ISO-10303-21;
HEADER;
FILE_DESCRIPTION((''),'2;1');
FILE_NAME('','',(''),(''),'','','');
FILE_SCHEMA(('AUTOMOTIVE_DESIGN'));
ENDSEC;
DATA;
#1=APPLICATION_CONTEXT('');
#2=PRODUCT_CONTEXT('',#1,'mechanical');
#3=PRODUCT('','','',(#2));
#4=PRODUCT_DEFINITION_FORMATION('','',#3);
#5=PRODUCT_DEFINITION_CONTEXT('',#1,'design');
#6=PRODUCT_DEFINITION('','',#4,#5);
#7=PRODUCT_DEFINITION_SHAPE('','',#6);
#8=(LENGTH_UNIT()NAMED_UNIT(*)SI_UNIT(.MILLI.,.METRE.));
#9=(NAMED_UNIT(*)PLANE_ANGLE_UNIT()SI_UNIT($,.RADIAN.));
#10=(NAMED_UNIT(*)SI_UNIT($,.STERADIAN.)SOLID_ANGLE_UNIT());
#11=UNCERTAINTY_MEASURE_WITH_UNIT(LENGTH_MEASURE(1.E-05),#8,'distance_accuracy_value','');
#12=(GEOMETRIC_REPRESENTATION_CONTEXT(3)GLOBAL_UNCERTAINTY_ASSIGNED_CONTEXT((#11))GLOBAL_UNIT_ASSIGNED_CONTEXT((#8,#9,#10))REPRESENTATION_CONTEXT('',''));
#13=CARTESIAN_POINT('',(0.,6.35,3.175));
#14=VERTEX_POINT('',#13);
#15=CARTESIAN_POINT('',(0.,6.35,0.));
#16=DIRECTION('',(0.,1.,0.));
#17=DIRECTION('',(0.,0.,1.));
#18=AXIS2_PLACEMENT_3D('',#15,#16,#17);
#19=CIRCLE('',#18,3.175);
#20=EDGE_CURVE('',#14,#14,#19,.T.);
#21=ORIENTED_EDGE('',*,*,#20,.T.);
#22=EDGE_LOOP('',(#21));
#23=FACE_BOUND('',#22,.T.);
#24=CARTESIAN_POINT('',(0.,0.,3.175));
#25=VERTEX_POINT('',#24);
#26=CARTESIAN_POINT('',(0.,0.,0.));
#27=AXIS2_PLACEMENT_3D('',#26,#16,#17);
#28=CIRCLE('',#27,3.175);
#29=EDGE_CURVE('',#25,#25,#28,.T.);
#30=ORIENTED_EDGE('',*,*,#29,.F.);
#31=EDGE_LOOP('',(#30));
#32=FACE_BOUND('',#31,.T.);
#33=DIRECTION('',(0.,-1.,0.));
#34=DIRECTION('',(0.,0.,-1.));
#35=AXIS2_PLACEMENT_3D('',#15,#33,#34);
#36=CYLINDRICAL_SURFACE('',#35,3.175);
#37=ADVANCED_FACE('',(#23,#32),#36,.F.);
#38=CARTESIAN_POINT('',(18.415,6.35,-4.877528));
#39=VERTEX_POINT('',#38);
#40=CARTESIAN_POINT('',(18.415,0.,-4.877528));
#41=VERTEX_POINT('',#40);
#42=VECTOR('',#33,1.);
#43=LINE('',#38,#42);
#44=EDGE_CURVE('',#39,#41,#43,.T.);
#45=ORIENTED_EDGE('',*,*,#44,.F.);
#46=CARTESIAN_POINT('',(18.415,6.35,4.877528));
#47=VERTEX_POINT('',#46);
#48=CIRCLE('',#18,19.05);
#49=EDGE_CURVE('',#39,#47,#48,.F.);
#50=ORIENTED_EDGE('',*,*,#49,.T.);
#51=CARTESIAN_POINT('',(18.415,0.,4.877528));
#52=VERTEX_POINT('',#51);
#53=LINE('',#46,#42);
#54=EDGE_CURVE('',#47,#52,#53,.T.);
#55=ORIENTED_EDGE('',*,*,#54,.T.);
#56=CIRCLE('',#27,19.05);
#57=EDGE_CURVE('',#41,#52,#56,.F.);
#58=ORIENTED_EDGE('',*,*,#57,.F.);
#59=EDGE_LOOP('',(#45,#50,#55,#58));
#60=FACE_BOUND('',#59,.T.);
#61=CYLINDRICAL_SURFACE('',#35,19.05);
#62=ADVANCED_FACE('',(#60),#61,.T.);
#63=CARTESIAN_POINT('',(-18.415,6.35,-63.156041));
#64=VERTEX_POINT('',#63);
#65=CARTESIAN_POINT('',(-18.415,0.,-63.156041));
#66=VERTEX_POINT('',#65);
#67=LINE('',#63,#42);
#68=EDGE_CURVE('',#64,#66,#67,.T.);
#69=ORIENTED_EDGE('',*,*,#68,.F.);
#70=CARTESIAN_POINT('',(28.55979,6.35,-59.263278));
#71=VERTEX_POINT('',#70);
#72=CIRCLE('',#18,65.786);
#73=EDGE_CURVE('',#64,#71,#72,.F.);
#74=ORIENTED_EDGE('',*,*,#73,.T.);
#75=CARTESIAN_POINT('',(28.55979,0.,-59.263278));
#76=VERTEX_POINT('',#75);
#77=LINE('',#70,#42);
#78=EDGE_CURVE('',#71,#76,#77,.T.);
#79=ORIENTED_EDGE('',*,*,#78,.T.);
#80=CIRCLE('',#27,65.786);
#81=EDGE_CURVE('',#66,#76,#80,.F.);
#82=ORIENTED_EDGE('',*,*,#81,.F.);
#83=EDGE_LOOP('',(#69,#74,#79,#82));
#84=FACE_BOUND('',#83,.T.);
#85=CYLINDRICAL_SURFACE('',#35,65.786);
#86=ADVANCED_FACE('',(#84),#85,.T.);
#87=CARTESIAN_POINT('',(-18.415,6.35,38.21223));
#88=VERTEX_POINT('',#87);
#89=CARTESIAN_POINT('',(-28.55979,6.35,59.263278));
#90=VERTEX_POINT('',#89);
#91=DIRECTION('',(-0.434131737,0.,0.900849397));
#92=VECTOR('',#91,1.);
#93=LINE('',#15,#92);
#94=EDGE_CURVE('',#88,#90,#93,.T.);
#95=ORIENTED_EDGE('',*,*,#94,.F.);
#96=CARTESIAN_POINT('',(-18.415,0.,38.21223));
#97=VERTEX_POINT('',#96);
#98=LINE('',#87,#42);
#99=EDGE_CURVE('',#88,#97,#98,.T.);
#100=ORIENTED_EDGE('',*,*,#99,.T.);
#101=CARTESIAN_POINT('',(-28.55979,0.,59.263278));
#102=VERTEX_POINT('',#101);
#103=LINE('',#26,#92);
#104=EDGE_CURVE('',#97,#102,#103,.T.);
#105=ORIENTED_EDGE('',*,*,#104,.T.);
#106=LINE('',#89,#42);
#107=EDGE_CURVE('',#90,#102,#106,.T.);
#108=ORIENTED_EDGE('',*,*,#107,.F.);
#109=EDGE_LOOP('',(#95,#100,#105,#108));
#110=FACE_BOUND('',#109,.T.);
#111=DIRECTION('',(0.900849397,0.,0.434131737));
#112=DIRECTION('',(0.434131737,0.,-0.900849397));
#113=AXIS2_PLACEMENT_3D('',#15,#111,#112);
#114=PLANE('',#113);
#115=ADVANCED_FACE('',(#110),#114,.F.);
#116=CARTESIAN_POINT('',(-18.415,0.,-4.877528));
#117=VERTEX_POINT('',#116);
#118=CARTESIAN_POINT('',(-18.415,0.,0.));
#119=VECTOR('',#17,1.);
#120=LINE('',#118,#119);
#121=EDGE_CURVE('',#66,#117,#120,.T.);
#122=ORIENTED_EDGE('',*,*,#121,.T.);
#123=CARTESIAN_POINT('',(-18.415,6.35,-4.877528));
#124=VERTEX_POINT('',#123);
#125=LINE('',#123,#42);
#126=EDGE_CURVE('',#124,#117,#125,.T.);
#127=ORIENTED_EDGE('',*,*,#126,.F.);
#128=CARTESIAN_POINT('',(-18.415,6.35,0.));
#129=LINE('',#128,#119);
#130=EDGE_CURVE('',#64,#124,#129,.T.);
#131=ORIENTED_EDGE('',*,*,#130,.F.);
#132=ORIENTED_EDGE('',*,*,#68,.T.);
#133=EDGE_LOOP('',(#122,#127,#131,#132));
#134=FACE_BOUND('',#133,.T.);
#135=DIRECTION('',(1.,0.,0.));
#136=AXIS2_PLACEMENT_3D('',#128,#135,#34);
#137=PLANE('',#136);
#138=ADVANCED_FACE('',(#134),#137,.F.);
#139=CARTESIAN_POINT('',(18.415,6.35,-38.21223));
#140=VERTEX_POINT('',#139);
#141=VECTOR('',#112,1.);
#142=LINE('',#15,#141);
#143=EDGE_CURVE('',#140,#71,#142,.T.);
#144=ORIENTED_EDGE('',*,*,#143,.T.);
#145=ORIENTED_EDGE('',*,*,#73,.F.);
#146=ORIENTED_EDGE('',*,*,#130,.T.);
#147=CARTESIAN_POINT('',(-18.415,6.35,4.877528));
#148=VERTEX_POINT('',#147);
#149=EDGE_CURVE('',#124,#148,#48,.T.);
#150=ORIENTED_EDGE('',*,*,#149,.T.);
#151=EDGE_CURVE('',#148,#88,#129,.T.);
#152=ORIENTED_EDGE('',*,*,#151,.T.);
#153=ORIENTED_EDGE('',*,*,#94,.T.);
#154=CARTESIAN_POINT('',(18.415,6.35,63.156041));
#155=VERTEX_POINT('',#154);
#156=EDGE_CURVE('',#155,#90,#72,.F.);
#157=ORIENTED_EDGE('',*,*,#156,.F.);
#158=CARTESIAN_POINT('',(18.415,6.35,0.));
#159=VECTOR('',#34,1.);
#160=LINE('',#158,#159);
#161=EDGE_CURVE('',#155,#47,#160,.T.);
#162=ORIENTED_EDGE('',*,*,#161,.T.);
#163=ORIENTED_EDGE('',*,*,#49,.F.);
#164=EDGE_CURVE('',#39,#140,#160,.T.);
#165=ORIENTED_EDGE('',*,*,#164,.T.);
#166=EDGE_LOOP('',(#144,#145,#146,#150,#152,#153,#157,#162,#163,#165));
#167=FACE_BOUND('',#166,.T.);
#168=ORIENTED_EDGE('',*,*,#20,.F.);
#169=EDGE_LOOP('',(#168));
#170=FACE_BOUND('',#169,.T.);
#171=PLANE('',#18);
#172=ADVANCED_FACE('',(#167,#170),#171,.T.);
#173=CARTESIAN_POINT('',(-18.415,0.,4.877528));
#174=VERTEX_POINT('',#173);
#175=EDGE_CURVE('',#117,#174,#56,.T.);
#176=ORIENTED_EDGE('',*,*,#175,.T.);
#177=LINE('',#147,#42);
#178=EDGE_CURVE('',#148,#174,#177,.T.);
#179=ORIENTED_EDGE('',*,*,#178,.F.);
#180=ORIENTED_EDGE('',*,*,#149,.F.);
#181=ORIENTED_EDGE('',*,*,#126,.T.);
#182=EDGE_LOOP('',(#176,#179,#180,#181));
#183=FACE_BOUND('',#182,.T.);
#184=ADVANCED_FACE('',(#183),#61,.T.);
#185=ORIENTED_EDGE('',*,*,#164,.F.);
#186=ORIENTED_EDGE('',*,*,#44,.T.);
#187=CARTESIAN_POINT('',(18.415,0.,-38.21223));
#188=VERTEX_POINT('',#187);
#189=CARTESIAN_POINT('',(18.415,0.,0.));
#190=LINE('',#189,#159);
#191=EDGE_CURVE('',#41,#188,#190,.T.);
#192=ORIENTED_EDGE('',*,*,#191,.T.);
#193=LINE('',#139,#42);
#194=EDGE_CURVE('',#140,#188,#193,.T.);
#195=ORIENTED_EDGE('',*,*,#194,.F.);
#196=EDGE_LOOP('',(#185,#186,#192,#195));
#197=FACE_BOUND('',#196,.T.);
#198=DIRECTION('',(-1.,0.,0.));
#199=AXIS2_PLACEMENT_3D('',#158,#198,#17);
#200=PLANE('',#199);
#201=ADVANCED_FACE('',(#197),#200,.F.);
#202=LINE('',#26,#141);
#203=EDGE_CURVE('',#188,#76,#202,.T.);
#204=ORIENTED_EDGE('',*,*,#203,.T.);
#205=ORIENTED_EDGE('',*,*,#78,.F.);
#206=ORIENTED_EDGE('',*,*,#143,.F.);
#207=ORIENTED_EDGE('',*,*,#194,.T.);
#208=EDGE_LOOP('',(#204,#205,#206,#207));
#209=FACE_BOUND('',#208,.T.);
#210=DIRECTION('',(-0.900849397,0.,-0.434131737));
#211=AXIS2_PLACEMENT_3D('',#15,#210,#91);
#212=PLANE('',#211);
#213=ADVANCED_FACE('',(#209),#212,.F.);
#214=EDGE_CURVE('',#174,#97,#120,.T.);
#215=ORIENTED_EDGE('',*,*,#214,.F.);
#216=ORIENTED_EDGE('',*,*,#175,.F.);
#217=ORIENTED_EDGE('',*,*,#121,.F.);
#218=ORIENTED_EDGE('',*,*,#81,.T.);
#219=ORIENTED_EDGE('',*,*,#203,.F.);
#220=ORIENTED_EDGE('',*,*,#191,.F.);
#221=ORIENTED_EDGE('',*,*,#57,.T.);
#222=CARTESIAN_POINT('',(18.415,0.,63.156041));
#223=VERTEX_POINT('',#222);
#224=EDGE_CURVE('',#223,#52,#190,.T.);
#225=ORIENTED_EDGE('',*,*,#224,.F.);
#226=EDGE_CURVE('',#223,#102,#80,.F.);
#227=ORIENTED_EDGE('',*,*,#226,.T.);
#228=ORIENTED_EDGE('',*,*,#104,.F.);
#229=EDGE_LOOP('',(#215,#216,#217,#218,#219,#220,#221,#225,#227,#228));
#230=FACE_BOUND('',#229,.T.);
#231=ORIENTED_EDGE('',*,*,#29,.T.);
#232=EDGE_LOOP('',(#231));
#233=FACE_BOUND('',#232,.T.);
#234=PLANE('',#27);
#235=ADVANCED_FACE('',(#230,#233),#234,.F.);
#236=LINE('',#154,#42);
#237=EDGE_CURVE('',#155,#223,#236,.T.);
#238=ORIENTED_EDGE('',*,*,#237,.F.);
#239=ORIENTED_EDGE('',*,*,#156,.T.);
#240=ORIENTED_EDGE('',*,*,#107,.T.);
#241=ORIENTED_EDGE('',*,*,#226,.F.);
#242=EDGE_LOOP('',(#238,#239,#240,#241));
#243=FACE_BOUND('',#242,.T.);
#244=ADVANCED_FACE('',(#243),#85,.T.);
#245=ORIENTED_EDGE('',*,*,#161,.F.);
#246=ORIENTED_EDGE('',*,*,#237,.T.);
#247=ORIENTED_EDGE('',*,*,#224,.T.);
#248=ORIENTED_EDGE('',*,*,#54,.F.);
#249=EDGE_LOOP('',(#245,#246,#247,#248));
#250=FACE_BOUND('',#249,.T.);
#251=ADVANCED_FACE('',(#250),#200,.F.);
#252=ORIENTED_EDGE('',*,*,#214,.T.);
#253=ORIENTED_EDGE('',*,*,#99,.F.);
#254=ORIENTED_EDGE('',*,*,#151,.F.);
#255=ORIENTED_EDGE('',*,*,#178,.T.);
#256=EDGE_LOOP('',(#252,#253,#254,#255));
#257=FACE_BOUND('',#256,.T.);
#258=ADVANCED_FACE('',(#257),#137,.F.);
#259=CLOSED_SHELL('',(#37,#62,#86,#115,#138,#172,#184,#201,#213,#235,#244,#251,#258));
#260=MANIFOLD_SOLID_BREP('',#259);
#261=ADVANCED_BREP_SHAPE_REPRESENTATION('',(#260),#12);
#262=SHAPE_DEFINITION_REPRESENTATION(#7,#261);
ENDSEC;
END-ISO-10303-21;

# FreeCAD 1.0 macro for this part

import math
import FreeCAD as App
import Part
import Sketcher

V = App.Vector
Q = App.Units.Quantity

doc = App.newDocument("Part")
params = doc.addObject("Spreadsheet::Sheet", "Params")
for row, (alias, value) in enumerate([
    ("sketch1_diameter", "0.25 in"),
    ("sketch1_radius", "0.75 in"),
    ("sketch1_radius2", "2.59 in"),
    ("sketch1_length", "0.92 in"),
    ("pad1_length", "0.25 in"),
], start=1):
    params.set(f"A{row}", alias)
    params.set(f"B{row}", "=" + value)
    params.setAlias(f"B{row}", alias)

body = doc.addObject("PartDesign::Body", "Body")

sketch1 = body.newObject("Sketcher::SketchObject", "Sketch")
sketch1.AttachmentSupport = (doc.getObject("XZ_Plane"), [""])
sketch1.MapMode = "FlatFace"
sketch1.addGeometry(Part.ArcOfCircle(Part.Circle(V(0, 0, 0), V(0, 0, 1), 19.1), math.radians(-15), math.radians(15)), False)
sketch1.addGeometry(Part.LineSegment(V(18.4, -4.9, 0), V(18.4, -38.2, 0)), False)
sketch1.addGeometry(Part.LineSegment(V(18.4, -38.2, 0), V(28.6, -59.3, 0)), False)
sketch1.addGeometry(Part.ArcOfCircle(Part.Circle(V(0, 0, 0), V(0, 0, 1), 65.8), math.radians(-106), math.radians(-64)), False)
sketch1.addGeometry(Part.LineSegment(V(-18.4, -63.2, 0), V(-18.4, -4.9, 0)), False)
sketch1.addGeometry(Part.ArcOfCircle(Part.Circle(V(0, 0, 0), V(0, 0, 1), 19.1), math.radians(165), math.radians(195)), False)
sketch1.addGeometry(Part.LineSegment(V(-18.4, 4.9, 0), V(-18.4, 38.2, 0)), False)
sketch1.addGeometry(Part.LineSegment(V(-18.4, 38.2, 0), V(-28.6, 59.3, 0)), False)
sketch1.addGeometry(Part.ArcOfCircle(Part.Circle(V(0, 0, 0), V(0, 0, 1), 65.8), math.radians(74), math.radians(116)), False)
sketch1.addGeometry(Part.LineSegment(V(18.4, 63.2, 0), V(18.4, 4.9, 0)), False)
sketch1.addGeometry(Part.Circle(V(0, 0, 0), V(0, 0, 1), 3.2), False)
sketch1.addConstraint(Sketcher.Constraint("Coincident", 0, 1, 1, 1))
sketch1.addConstraint(Sketcher.Constraint("Coincident", 1, 2, 2, 1))
sketch1.addConstraint(Sketcher.Constraint("Coincident", 2, 2, 3, 2))
sketch1.addConstraint(Sketcher.Constraint("Coincident", 3, 1, 4, 1))
sketch1.addConstraint(Sketcher.Constraint("Coincident", 4, 2, 5, 2))
sketch1.addConstraint(Sketcher.Constraint("Coincident", 5, 1, 6, 1))
sketch1.addConstraint(Sketcher.Constraint("Coincident", 6, 2, 7, 1))
sketch1.addConstraint(Sketcher.Constraint("Coincident", 7, 2, 8, 2))
sketch1.addConstraint(Sketcher.Constraint("Coincident", 8, 1, 9, 1))
sketch1.addConstraint(Sketcher.Constraint("Coincident", 9, 2, 0, 2))
sketch1.addConstraint(Sketcher.Constraint("Vertical", 1))
sketch1.addConstraint(Sketcher.Constraint("Vertical", 4))
sketch1.addConstraint(Sketcher.Constraint("Vertical", 6))
sketch1.addConstraint(Sketcher.Constraint("Vertical", 9))
sketch1.addConstraint(Sketcher.Constraint("Coincident", 0, 3, -1, 1))
sketch1.addConstraint(Sketcher.Constraint("Coincident", 3, 3, -1, 1))
sketch1.addConstraint(Sketcher.Constraint("Coincident", 5, 3, -1, 1))
sketch1.addConstraint(Sketcher.Constraint("Coincident", 8, 3, -1, 1))
sketch1.addConstraint(Sketcher.Constraint("Coincident", 10, 3, -1, 1))
sketch1.addConstraint(Sketcher.Constraint("Equal", 0, 5))
sketch1.addConstraint(Sketcher.Constraint("Equal", 3, 8))
sketch1.addConstraint(Sketcher.Constraint("Symmetric", 1, 2, 6, 2, -1, 1))
sketch1.addConstraint(Sketcher.Constraint("Parallel", 2, 7))
sketch1.addConstraint(Sketcher.Constraint("Horizontal", 0, 1, 4, 2))
sketch1.addConstraint(Sketcher.Constraint("Horizontal", 5, 1, 9, 2))
sketch1.addConstraint(Sketcher.Constraint("Diameter", 10, Q("0.25 in")))
sketch1.addConstraint(Sketcher.Constraint("Radius", 0, Q("0.75 in")))
sketch1.addConstraint(Sketcher.Constraint("Radius", 3, Q("2.59 in")))
sketch1.addConstraint(Sketcher.Constraint("Distance", 2, Q("0.92 in")))
sketch1.addConstraint(Sketcher.Constraint("DistanceX", 3, 1, 1, 2, Q("1.45 in")))
sketch1.addConstraint(Sketcher.Constraint("DistanceY", 2, 2, -1, 1, Q("2.3331999 in")))
sketch1.setExpression("Constraints[25]", "Params.sketch1_diameter")
sketch1.setExpression("Constraints[26]", "Params.sketch1_radius")
sketch1.setExpression("Constraints[27]", "Params.sketch1_radius2")
sketch1.setExpression("Constraints[28]", "Params.sketch1_length")
pad1 = body.newObject("PartDesign::Pad", "Pad")
pad1.Profile = sketch1
pad1.setExpression("Length", "Params.pad1_length")
pad1.Reversed = True

doc.recompute()
